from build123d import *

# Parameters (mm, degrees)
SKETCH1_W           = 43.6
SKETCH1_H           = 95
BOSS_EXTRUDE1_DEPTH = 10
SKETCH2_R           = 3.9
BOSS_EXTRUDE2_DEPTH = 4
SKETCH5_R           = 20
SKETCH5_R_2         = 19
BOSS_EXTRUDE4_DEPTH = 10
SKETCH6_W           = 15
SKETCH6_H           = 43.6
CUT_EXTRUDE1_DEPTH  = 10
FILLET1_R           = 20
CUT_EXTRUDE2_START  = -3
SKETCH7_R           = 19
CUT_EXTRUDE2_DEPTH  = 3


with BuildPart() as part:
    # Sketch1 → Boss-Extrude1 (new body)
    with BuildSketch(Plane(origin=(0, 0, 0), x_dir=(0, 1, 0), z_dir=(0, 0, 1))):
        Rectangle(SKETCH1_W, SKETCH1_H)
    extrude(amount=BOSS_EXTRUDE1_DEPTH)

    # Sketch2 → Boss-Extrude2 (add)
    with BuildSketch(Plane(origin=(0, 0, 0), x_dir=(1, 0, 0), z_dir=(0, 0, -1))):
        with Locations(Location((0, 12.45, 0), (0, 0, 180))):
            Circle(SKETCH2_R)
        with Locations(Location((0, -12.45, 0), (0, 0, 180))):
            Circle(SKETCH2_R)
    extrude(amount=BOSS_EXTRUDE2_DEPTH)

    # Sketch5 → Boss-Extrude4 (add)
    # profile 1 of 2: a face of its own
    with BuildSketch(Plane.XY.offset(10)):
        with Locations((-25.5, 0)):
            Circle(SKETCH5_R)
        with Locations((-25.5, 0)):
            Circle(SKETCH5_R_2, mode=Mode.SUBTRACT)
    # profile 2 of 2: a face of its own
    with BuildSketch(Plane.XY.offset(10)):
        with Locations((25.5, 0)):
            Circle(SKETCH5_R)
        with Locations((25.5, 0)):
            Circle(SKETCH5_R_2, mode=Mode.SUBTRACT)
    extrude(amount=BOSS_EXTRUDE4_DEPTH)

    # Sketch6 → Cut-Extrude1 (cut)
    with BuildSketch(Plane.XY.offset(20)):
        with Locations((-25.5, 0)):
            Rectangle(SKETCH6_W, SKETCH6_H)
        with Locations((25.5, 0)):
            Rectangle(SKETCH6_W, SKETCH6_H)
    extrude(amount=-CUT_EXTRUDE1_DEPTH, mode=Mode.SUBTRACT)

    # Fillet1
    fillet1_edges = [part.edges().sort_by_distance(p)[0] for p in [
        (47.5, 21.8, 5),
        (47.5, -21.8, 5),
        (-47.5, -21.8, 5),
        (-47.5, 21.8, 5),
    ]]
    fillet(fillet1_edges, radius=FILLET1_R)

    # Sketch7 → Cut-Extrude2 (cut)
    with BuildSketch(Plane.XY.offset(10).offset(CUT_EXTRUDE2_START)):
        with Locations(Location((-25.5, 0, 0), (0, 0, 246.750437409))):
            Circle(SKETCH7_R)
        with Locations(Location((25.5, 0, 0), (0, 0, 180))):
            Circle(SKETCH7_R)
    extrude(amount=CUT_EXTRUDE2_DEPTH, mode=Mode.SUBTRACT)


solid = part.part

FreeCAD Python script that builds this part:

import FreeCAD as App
import Part
import Sketcher


def edges_at(feature, points):
    """Names of the edges that pass closest to the given points."""
    edges = feature.Shape.Edges
    near = lambda p: min(range(len(edges)), key=lambda i: edges[i].distToShape(Part.Vertex(*p))[0])
    return sorted({f"Edge{near(p) + 1}" for p in points})

doc = App.newDocument("Part")
body = doc.addObject("PartDesign::Body", "Body")

sketch1 = body.newObject("Sketcher::SketchObject", "Sketch")
sketch1.AttachmentSupport = (doc.getObject("XY_Plane"), [""])
sketch1.MapMode = "FlatFace"
sketch1.addGeometry(Part.LineSegment(App.Vector(-47.5, -21.8, 0), App.Vector(47.5, -21.8, 0)), False)
sketch1.addGeometry(Part.LineSegment(App.Vector(47.5, -21.8, 0), App.Vector(47.5, 21.8, 0)), False)
sketch1.addGeometry(Part.LineSegment(App.Vector(47.5, 21.8, 0), App.Vector(-47.5, 21.8, 0)), False)
sketch1.addGeometry(Part.LineSegment(App.Vector(-47.5, 21.8, 0), App.Vector(-47.5, -21.8, 0)), False)
sketch1.addConstraint(Sketcher.Constraint("Coincident", 0, 2, 1, 1))
sketch1.addConstraint(Sketcher.Constraint("Coincident", 1, 2, 2, 1))
sketch1.addConstraint(Sketcher.Constraint("Coincident", 2, 2, 3, 1))
sketch1.addConstraint(Sketcher.Constraint("Coincident", 3, 2, 0, 1))
sketch1.addConstraint(Sketcher.Constraint("Horizontal", 0))
sketch1.addConstraint(Sketcher.Constraint("Vertical", 1))
sketch1.addConstraint(Sketcher.Constraint("Horizontal", 2))
sketch1.addConstraint(Sketcher.Constraint("Vertical", 3))
sketch1.addConstraint(Sketcher.Constraint("Symmetric", 0, 2, 2, 2, -1, 1))
sketch1.addConstraint(Sketcher.Constraint("DistanceX", 0, 1, 0, 2, 95.0))
sketch1.addConstraint(Sketcher.Constraint("DistanceY", 1, 1, 1, 2, 43.6))
pad1 = body.newObject("PartDesign::Pad", "Pad")
pad1.Profile = sketch1
pad1.Length = 10

sketch2 = body.newObject("Sketcher::SketchObject", "Sketch001")
sketch2.AttachmentSupport = (doc.getObject("XY_Plane"), [""])
sketch2.MapMode = "FlatFace"
sketch2.addGeometry(Part.Circle(App.Vector(0, -12.45, 0), App.Vector(0, 0, 1), 3.9), False)
sketch2.addGeometry(Part.Circle(App.Vector(0, 12.45, 0), App.Vector(0, 0, 1), 3.9), False)
sketch2.addConstraint(Sketcher.Constraint("Equal", 0, 1))
sketch2.addConstraint(Sketcher.Constraint("Symmetric", 0, 3, 1, 3, -1, 1))
sketch2.addConstraint(Sketcher.Constraint("PointOnObject", 0, 3, -2))
sketch2.addConstraint(Sketcher.Constraint("Diameter", 0, 7.8))
sketch2.addConstraint(Sketcher.Constraint("DistanceY", 0, 3, 1, 3, 24.9))
pad2 = body.newObject("PartDesign::Pad", "Pad001")
pad2.Profile = sketch2
pad2.Length = 4
pad2.Reversed = True

sketch3 = body.newObject("Sketcher::SketchObject", "Sketch002")
sketch3.AttachmentSupport = (doc.getObject("XY_Plane"), [""])
sketch3.MapMode = "FlatFace"
sketch3.AttachmentOffset = App.Placement(App.Vector(0, 0, 10), App.Rotation())
sketch3.addGeometry(Part.Circle(App.Vector(-25.5, 0, 0), App.Vector(0, 0, 1), 20), False)
sketch3.addGeometry(Part.Circle(App.Vector(-25.5, 0, 0), App.Vector(0, 0, 1), 19), False)
sketch3.addGeometry(Part.Circle(App.Vector(25.5, 0, 0), App.Vector(0, 0, 1), 20), False)
sketch3.addGeometry(Part.Circle(App.Vector(25.5, 0, 0), App.Vector(0, 0, 1), 19), False)
sketch3.addConstraint(Sketcher.Constraint("Coincident", 1, 3, 0, 3))
sketch3.addConstraint(Sketcher.Constraint("Coincident", 3, 3, 2, 3))
sketch3.addConstraint(Sketcher.Constraint("Equal", 0, 2))
sketch3.addConstraint(Sketcher.Constraint("Equal", 1, 3))
sketch3.addConstraint(Sketcher.Constraint("Symmetric", 0, 3, 2, 3, -1, 1))
sketch3.addConstraint(Sketcher.Constraint("PointOnObject", 0, 3, -1))
sketch3.addConstraint(Sketcher.Constraint("Diameter", 0, 40.0))
sketch3.addConstraint(Sketcher.Constraint("Diameter", 1, 38.0))
sketch3.addConstraint(Sketcher.Constraint("DistanceX", 0, 3, 2, 3, 51.0))
pad3 = body.newObject("PartDesign::Pad", "Pad002")
pad3.Profile = sketch3
pad3.Length = 10

sketch4 = body.newObject("Sketcher::SketchObject", "Sketch003")
sketch4.AttachmentSupport = (doc.getObject("XY_Plane"), [""])
sketch4.MapMode = "FlatFace"
sketch4.AttachmentOffset = App.Placement(App.Vector(0, 0, 20), App.Rotation())
sketch4.addGeometry(Part.LineSegment(App.Vector(-33, 21.8, 0), App.Vector(-33, -21.8, 0)), False)
sketch4.addGeometry(Part.LineSegment(App.Vector(-33, -21.8, 0), App.Vector(-18, -21.8, 0)), False)
sketch4.addGeometry(Part.LineSegment(App.Vector(-18, -21.8, 0), App.Vector(-18, 21.8, 0)), False)
sketch4.addGeometry(Part.LineSegment(App.Vector(-18, 21.8, 0), App.Vector(-33, 21.8, 0)), False)
sketch4.addGeometry(Part.LineSegment(App.Vector(18, 21.8, 0), App.Vector(18, -21.8, 0)), False)
sketch4.addGeometry(Part.LineSegment(App.Vector(18, -21.8, 0), App.Vector(33, -21.8, 0)), False)
sketch4.addGeometry(Part.LineSegment(App.Vector(33, -21.8, 0), App.Vector(33, 21.8, 0)), False)
sketch4.addGeometry(Part.LineSegment(App.Vector(33, 21.8, 0), App.Vector(18, 21.8, 0)), False)
sketch4.addConstraint(Sketcher.Constraint("Coincident", 0, 2, 1, 1))
sketch4.addConstraint(Sketcher.Constraint("Coincident", 1, 2, 2, 1))
sketch4.addConstraint(Sketcher.Constraint("Coincident", 2, 2, 3, 1))
sketch4.addConstraint(Sketcher.Constraint("Coincident", 3, 2, 0, 1))
sketch4.addConstraint(Sketcher.Constraint("Coincident", 4, 2, 5, 1))
sketch4.addConstraint(Sketcher.Constraint("Coincident", 5, 2, 6, 1))
sketch4.addConstraint(Sketcher.Constraint("Coincident", 6, 2, 7, 1))
sketch4.addConstraint(Sketcher.Constraint("Coincident", 7, 2, 4, 1))
sketch4.addConstraint(Sketcher.Constraint("Vertical", 0))
sketch4.addConstraint(Sketcher.Constraint("Horizontal", 1))
sketch4.addConstraint(Sketcher.Constraint("Vertical", 2))
sketch4.addConstraint(Sketcher.Constraint("Horizontal", 3))
sketch4.addConstraint(Sketcher.Constraint("Vertical", 4))
sketch4.addConstraint(Sketcher.Constraint("Horizontal", 5))
sketch4.addConstraint(Sketcher.Constraint("Vertical", 6))
sketch4.addConstraint(Sketcher.Constraint("Horizontal", 7))
sketch4.addConstraint(Sketcher.Constraint("Symmetric", 2, 2, 4, 2, -1, 1))
sketch4.addConstraint(Sketcher.Constraint("Symmetric", 0, 2, 6, 2, -1, 1))
sketch4.addConstraint(Sketcher.Constraint("Horizontal", 1, 2, 4, 2))
sketch4.addConstraint(Sketcher.Constraint("DistanceX", 1, 1, 1, 2, 15.0))
sketch4.addConstraint(Sketcher.Constraint("DistanceY", 0, 2, 0, 1, 43.6))
sketch4.addConstraint(Sketcher.Constraint("DistanceX", 0, 2, -1, 1, 33.0))
pocket1 = body.newObject("PartDesign::Pocket", "Pocket")
pocket1.Profile = sketch4
pocket1.Length = 10
doc.recompute()

fillet = body.newObject("PartDesign::Fillet", "Fillet")
fillet.Base = (pocket1, edges_at(pocket1, [
    (47.5, 21.8, 5),
    (47.5, -21.8, 5),
    (-47.5, -21.8, 5),
    (-47.5, 21.8, 5),
]))
fillet.Radius = 20

sketch5 = body.newObject("Sketcher::SketchObject", "Sketch004")
sketch5.AttachmentSupport = (doc.getObject("XY_Plane"), [""])
sketch5.MapMode = "FlatFace"
sketch5.AttachmentOffset = App.Placement(App.Vector(0, 0, 7), App.Rotation())
sketch5.addGeometry(Part.Circle(App.Vector(-25.5, 0, 0), App.Vector(0, 0, 1), 19), False)
sketch5.addGeometry(Part.Circle(App.Vector(25.5, 0, 0), App.Vector(0, 0, 1), 19), False)
sketch5.addConstraint(Sketcher.Constraint("Equal", 0, 1))
sketch5.addConstraint(Sketcher.Constraint("Symmetric", 0, 3, 1, 3, -1, 1))
sketch5.addConstraint(Sketcher.Constraint("PointOnObject", 0, 3, -1))
sketch5.addConstraint(Sketcher.Constraint("Diameter", 0, 38.0))
sketch5.addConstraint(Sketcher.Constraint("DistanceX", 0, 3, 1, 3, 51.0))
pocket2 = body.newObject("PartDesign::Pocket", "Pocket001")
pocket2.Profile = sketch5
pocket2.Length = 3
pocket2.Reversed = True

doc.recompute()
